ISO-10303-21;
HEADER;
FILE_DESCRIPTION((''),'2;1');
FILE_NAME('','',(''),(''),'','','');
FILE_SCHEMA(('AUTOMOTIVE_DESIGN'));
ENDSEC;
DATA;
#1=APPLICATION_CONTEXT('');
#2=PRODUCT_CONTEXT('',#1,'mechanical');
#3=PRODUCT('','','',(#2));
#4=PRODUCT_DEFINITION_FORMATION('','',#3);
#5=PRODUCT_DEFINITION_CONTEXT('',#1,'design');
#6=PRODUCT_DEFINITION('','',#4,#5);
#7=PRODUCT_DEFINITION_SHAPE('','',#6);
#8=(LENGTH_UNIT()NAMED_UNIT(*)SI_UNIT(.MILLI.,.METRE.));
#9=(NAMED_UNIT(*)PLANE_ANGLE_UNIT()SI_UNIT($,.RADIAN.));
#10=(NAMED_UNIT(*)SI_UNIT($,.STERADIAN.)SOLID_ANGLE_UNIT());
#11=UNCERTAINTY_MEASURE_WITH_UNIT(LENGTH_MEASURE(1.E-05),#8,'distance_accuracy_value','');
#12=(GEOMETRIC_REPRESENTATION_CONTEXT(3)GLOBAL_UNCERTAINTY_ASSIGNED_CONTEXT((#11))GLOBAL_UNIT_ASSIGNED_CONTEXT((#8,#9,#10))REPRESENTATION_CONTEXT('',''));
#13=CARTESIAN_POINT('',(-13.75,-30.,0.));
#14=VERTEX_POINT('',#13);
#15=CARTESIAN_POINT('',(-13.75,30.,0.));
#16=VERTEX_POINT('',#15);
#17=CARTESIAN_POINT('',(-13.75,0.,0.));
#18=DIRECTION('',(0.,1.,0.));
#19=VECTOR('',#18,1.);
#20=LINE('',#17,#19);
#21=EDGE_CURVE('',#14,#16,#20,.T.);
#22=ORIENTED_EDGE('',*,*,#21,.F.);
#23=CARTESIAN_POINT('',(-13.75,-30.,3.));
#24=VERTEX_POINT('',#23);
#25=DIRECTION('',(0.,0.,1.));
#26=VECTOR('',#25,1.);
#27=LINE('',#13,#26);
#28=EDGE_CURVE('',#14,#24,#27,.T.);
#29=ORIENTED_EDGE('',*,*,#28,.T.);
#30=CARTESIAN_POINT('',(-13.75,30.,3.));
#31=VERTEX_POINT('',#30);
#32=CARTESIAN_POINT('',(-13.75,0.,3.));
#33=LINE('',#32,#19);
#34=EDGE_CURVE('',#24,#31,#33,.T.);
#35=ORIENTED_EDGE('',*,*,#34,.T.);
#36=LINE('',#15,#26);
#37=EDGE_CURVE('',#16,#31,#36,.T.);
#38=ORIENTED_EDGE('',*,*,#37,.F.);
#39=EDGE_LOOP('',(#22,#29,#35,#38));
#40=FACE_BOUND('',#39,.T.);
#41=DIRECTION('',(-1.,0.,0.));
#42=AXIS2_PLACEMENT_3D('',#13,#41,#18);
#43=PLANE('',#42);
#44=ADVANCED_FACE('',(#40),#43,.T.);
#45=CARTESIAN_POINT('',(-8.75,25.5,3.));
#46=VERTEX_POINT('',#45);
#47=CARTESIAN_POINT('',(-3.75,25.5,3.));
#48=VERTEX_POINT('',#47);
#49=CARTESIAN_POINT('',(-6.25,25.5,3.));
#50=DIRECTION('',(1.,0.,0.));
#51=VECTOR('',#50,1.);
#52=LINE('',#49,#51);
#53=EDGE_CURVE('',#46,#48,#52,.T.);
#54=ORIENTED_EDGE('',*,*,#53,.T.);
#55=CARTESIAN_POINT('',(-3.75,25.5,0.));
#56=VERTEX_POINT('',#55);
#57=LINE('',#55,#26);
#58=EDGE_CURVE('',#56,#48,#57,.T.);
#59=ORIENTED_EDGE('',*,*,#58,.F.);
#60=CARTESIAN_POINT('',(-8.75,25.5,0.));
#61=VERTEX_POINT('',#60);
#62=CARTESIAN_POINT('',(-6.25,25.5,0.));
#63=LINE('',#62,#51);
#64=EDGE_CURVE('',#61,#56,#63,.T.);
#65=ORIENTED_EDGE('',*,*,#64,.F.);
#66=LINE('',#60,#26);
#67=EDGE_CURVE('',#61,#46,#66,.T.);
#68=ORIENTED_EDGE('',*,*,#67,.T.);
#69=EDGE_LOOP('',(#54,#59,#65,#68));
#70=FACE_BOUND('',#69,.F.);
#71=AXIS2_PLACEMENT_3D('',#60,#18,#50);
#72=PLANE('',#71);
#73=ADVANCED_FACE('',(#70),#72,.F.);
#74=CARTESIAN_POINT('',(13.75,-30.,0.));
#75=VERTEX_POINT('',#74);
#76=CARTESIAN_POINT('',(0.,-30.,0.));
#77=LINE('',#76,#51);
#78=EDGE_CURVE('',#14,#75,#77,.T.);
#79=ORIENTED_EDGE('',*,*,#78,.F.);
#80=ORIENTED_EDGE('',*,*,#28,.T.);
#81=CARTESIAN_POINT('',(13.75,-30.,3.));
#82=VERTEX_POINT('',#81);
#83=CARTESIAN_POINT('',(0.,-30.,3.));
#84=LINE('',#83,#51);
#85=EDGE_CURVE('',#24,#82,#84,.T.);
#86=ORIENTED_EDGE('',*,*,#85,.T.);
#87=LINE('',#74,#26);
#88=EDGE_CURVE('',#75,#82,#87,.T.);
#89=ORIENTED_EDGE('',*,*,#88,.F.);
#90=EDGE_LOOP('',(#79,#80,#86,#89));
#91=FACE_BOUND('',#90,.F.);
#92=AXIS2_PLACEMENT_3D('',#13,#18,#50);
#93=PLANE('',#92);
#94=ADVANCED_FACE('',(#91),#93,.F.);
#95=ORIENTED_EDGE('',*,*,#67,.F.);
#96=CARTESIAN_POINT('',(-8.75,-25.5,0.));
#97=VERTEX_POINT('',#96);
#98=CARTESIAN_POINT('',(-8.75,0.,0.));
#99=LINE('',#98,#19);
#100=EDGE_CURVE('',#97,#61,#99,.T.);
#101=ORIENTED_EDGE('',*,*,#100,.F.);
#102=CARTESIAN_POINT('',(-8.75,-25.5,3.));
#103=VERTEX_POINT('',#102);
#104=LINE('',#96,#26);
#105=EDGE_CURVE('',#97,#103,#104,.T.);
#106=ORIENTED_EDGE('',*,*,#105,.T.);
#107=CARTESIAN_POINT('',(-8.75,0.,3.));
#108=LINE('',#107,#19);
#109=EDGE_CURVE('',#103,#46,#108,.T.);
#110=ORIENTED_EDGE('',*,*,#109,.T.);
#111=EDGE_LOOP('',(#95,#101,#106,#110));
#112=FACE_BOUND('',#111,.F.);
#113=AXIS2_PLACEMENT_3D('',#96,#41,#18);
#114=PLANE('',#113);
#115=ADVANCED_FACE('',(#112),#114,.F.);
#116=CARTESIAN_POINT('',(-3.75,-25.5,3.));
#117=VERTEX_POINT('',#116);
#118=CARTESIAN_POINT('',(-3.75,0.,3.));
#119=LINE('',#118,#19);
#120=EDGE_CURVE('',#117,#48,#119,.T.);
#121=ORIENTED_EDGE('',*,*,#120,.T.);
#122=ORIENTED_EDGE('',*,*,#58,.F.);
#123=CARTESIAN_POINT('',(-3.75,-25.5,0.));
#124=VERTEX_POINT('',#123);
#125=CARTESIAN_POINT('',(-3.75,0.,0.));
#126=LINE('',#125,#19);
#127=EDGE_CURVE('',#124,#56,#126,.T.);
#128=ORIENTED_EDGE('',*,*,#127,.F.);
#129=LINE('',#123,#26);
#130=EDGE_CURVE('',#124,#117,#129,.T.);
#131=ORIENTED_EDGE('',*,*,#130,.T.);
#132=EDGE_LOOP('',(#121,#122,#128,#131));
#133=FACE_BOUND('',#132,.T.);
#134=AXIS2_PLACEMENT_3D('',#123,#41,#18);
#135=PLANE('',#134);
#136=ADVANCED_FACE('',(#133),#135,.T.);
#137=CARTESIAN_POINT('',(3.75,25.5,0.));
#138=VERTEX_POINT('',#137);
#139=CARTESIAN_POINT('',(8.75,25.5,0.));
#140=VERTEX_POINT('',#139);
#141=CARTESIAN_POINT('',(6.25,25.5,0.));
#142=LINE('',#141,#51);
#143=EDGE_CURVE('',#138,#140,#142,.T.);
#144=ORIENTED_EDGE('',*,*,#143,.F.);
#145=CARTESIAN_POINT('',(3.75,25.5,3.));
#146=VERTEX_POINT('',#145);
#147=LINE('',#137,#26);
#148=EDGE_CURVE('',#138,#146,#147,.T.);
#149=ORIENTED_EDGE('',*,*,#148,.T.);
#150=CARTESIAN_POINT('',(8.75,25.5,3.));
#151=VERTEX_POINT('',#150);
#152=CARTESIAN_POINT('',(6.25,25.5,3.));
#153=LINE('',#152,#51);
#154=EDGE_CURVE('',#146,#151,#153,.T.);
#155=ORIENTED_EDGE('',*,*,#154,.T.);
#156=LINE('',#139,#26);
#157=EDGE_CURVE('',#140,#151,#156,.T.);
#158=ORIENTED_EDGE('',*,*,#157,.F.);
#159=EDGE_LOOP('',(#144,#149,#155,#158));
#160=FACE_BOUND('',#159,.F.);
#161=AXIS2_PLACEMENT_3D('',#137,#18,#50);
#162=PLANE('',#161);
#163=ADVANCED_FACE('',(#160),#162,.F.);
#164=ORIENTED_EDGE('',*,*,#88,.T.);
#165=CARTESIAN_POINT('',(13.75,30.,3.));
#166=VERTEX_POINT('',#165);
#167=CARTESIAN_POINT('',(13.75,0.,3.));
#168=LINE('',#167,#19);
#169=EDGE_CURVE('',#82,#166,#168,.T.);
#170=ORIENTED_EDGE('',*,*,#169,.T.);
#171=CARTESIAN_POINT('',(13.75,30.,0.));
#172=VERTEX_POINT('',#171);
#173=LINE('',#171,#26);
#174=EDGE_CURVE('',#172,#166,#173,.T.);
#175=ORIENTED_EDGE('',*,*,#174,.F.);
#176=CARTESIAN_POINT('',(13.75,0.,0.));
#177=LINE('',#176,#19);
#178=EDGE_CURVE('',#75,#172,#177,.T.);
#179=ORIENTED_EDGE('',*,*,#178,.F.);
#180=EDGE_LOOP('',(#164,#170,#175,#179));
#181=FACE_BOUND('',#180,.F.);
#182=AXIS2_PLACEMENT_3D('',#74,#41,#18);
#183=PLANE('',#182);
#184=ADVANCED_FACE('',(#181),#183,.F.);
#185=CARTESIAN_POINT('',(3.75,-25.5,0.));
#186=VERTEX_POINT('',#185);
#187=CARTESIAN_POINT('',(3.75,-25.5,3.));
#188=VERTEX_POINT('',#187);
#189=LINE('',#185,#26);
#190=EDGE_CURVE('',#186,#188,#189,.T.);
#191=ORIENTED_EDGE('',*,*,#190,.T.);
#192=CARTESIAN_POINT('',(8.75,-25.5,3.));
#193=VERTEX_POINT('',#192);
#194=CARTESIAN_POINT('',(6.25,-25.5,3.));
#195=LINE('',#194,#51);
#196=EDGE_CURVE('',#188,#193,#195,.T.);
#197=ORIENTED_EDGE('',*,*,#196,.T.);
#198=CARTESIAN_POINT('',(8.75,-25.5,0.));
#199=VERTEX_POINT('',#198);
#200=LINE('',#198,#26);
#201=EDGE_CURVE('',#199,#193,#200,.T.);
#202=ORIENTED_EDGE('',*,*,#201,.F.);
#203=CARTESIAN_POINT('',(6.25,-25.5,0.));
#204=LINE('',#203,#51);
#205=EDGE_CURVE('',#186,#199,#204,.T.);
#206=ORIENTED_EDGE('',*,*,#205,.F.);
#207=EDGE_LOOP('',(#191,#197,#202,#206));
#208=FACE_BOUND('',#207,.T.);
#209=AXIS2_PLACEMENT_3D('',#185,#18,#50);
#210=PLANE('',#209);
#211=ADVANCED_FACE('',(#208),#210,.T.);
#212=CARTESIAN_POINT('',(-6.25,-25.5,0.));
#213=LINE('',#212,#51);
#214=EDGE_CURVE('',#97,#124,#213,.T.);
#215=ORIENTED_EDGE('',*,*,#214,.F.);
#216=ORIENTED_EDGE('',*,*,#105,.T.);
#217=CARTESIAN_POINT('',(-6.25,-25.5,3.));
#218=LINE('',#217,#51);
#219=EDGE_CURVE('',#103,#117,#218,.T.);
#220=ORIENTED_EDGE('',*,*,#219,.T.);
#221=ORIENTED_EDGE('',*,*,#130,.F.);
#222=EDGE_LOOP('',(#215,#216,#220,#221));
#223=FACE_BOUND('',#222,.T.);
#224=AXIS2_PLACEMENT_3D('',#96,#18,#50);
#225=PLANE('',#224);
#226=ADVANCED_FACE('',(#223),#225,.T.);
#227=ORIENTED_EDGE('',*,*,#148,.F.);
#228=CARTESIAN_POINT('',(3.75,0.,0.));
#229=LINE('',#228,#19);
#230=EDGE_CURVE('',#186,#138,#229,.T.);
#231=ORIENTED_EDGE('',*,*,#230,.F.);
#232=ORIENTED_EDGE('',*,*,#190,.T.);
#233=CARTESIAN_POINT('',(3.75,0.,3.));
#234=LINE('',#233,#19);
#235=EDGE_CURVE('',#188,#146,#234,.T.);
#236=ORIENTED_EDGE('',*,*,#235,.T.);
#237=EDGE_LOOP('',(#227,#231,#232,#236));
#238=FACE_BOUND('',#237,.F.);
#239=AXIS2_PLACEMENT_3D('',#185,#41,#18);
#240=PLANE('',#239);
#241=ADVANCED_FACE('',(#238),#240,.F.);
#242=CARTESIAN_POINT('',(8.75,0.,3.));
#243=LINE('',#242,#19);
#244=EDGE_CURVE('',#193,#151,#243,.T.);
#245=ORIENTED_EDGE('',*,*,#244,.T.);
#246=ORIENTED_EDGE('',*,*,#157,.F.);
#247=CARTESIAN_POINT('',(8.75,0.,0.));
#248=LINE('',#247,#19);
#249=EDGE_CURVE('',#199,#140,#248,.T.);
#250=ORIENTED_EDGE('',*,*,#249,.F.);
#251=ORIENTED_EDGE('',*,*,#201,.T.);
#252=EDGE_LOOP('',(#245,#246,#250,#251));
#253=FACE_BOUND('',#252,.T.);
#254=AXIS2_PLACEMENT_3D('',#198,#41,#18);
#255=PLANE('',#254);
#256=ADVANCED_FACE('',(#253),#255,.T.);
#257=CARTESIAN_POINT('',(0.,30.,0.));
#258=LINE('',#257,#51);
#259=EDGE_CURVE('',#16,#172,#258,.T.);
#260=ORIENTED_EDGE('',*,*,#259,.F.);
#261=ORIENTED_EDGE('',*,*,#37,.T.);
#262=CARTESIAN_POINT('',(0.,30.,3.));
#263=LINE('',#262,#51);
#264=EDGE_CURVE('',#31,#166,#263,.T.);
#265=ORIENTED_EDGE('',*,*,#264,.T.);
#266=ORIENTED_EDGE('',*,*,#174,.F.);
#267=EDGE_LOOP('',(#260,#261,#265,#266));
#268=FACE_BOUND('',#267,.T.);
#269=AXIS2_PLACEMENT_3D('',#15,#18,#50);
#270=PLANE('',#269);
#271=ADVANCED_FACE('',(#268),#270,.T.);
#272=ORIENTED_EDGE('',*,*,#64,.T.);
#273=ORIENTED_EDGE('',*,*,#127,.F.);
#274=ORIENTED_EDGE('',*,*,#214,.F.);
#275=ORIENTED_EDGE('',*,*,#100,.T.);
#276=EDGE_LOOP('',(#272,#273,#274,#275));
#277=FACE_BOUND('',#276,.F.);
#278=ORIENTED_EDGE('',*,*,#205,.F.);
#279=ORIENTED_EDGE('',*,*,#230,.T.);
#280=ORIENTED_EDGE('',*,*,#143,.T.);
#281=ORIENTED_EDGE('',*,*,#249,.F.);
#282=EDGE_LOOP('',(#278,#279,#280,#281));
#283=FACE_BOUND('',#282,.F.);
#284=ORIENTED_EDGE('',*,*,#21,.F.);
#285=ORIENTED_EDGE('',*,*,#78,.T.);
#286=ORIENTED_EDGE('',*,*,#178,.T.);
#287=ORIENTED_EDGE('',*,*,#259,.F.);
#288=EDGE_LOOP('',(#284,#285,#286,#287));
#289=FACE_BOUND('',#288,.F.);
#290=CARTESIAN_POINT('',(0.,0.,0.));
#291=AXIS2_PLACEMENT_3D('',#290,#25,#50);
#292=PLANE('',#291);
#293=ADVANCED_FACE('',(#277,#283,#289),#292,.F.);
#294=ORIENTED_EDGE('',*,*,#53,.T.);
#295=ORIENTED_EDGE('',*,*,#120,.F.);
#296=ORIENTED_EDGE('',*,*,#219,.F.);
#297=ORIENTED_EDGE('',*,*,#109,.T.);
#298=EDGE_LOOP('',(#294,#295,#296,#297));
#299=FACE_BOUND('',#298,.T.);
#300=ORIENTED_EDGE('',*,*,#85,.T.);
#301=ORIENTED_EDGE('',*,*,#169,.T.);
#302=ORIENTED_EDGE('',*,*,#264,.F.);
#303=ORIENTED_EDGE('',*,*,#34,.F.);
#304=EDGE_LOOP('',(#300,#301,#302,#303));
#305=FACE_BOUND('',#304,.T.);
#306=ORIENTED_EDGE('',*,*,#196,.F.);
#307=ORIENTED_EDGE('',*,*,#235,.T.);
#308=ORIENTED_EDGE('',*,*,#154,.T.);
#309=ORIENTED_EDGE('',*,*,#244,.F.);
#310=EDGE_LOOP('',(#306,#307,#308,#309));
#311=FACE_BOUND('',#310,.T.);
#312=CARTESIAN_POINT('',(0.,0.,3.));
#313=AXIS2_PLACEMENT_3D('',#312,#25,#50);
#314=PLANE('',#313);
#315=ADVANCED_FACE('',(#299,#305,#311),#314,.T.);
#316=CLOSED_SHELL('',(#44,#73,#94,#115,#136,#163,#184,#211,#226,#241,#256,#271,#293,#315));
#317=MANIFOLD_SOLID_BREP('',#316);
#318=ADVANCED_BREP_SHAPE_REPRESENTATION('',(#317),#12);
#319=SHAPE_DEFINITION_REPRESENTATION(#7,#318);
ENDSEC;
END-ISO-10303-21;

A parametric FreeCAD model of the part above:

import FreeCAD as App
import Part
import Sketcher

V = App.Vector


def add_polygon(sketch, points):
    """Adds a closed chain of lines whose ends are joined by coincident constraints."""
    first, n = sketch.GeometryCount, len(points)
    for a, b in zip(points, points[1:] + points[:1]):
        sketch.addGeometry(Part.LineSegment(App.Vector(*a, 0), App.Vector(*b, 0)), False)
    for i in range(n):
        sketch.addConstraint(Sketcher.Constraint("Coincident", first + i, 2, first + (i + 1) % n, 1))

doc = App.newDocument("Part")
body = doc.addObject("PartDesign::Body", "Body")

# Sketch on XY plane
sketch1 = body.newObject("Sketcher::SketchObject", "Sketch")
sketch1.AttachmentSupport = (doc.getObject("XY_Plane"), [""])
sketch1.MapMode = "FlatFace"
add_polygon(sketch1, [(-13.75, 30), (-13.75, -30), (13.75, -30), (13.75, 30)])  # lines 0-3
add_polygon(sketch1, [(-3.75, -25.5), (-8.75, -25.5), (-8.75, 25.5), (-3.75, 25.5)])  # lines 4-7
add_polygon(sketch1, [(8.75, -25.5), (3.75, -25.5), (3.75, 25.5), (8.75, 25.5)])  # lines 8-11
sketch1.addConstraint([
    Sketcher.Constraint("Vertical", 0),
    Sketcher.Constraint("Horizontal", 1),
    Sketcher.Constraint("Vertical", 2),
    Sketcher.Constraint("Horizontal", 3),
    Sketcher.Constraint("Horizontal", 4),
    Sketcher.Constraint("Vertical", 5),
    Sketcher.Constraint("Horizontal", 6),
    Sketcher.Constraint("Vertical", 7),
    Sketcher.Constraint("Horizontal", 8),
    Sketcher.Constraint("Vertical", 9),
    Sketcher.Constraint("Horizontal", 10),
    Sketcher.Constraint("Vertical", 11),
    Sketcher.Constraint("Symmetric", 0, 2, 2, 2, -1, 1),
    Sketcher.Constraint("Symmetric", 6, 2, 8, 2, -1, 1),
    Sketcher.Constraint("Symmetric", 4, 2, 10, 2, -1, 1),
    Sketcher.Constraint("Horizontal", 7, 2, 8, 2),
    Sketcher.Constraint("DistanceX", 4, 2, 4, 1, 5.0),
    Sketcher.Constraint("DistanceY", 0, 2, 0, 1, 60.0),
    Sketcher.Constraint("DistanceY", 5, 1, 5, 2, 51.0),
    Sketcher.Constraint("DistanceX", 1, 1, 1, 2, 27.5),
    Sketcher.Constraint("DistanceX", 0, 2, 4, 2, 5.0),
])
pad1 = body.newObject("PartDesign::Pad", "Pad")
pad1.Profile = sketch1
pad1.Length = 3

doc.recompute()
